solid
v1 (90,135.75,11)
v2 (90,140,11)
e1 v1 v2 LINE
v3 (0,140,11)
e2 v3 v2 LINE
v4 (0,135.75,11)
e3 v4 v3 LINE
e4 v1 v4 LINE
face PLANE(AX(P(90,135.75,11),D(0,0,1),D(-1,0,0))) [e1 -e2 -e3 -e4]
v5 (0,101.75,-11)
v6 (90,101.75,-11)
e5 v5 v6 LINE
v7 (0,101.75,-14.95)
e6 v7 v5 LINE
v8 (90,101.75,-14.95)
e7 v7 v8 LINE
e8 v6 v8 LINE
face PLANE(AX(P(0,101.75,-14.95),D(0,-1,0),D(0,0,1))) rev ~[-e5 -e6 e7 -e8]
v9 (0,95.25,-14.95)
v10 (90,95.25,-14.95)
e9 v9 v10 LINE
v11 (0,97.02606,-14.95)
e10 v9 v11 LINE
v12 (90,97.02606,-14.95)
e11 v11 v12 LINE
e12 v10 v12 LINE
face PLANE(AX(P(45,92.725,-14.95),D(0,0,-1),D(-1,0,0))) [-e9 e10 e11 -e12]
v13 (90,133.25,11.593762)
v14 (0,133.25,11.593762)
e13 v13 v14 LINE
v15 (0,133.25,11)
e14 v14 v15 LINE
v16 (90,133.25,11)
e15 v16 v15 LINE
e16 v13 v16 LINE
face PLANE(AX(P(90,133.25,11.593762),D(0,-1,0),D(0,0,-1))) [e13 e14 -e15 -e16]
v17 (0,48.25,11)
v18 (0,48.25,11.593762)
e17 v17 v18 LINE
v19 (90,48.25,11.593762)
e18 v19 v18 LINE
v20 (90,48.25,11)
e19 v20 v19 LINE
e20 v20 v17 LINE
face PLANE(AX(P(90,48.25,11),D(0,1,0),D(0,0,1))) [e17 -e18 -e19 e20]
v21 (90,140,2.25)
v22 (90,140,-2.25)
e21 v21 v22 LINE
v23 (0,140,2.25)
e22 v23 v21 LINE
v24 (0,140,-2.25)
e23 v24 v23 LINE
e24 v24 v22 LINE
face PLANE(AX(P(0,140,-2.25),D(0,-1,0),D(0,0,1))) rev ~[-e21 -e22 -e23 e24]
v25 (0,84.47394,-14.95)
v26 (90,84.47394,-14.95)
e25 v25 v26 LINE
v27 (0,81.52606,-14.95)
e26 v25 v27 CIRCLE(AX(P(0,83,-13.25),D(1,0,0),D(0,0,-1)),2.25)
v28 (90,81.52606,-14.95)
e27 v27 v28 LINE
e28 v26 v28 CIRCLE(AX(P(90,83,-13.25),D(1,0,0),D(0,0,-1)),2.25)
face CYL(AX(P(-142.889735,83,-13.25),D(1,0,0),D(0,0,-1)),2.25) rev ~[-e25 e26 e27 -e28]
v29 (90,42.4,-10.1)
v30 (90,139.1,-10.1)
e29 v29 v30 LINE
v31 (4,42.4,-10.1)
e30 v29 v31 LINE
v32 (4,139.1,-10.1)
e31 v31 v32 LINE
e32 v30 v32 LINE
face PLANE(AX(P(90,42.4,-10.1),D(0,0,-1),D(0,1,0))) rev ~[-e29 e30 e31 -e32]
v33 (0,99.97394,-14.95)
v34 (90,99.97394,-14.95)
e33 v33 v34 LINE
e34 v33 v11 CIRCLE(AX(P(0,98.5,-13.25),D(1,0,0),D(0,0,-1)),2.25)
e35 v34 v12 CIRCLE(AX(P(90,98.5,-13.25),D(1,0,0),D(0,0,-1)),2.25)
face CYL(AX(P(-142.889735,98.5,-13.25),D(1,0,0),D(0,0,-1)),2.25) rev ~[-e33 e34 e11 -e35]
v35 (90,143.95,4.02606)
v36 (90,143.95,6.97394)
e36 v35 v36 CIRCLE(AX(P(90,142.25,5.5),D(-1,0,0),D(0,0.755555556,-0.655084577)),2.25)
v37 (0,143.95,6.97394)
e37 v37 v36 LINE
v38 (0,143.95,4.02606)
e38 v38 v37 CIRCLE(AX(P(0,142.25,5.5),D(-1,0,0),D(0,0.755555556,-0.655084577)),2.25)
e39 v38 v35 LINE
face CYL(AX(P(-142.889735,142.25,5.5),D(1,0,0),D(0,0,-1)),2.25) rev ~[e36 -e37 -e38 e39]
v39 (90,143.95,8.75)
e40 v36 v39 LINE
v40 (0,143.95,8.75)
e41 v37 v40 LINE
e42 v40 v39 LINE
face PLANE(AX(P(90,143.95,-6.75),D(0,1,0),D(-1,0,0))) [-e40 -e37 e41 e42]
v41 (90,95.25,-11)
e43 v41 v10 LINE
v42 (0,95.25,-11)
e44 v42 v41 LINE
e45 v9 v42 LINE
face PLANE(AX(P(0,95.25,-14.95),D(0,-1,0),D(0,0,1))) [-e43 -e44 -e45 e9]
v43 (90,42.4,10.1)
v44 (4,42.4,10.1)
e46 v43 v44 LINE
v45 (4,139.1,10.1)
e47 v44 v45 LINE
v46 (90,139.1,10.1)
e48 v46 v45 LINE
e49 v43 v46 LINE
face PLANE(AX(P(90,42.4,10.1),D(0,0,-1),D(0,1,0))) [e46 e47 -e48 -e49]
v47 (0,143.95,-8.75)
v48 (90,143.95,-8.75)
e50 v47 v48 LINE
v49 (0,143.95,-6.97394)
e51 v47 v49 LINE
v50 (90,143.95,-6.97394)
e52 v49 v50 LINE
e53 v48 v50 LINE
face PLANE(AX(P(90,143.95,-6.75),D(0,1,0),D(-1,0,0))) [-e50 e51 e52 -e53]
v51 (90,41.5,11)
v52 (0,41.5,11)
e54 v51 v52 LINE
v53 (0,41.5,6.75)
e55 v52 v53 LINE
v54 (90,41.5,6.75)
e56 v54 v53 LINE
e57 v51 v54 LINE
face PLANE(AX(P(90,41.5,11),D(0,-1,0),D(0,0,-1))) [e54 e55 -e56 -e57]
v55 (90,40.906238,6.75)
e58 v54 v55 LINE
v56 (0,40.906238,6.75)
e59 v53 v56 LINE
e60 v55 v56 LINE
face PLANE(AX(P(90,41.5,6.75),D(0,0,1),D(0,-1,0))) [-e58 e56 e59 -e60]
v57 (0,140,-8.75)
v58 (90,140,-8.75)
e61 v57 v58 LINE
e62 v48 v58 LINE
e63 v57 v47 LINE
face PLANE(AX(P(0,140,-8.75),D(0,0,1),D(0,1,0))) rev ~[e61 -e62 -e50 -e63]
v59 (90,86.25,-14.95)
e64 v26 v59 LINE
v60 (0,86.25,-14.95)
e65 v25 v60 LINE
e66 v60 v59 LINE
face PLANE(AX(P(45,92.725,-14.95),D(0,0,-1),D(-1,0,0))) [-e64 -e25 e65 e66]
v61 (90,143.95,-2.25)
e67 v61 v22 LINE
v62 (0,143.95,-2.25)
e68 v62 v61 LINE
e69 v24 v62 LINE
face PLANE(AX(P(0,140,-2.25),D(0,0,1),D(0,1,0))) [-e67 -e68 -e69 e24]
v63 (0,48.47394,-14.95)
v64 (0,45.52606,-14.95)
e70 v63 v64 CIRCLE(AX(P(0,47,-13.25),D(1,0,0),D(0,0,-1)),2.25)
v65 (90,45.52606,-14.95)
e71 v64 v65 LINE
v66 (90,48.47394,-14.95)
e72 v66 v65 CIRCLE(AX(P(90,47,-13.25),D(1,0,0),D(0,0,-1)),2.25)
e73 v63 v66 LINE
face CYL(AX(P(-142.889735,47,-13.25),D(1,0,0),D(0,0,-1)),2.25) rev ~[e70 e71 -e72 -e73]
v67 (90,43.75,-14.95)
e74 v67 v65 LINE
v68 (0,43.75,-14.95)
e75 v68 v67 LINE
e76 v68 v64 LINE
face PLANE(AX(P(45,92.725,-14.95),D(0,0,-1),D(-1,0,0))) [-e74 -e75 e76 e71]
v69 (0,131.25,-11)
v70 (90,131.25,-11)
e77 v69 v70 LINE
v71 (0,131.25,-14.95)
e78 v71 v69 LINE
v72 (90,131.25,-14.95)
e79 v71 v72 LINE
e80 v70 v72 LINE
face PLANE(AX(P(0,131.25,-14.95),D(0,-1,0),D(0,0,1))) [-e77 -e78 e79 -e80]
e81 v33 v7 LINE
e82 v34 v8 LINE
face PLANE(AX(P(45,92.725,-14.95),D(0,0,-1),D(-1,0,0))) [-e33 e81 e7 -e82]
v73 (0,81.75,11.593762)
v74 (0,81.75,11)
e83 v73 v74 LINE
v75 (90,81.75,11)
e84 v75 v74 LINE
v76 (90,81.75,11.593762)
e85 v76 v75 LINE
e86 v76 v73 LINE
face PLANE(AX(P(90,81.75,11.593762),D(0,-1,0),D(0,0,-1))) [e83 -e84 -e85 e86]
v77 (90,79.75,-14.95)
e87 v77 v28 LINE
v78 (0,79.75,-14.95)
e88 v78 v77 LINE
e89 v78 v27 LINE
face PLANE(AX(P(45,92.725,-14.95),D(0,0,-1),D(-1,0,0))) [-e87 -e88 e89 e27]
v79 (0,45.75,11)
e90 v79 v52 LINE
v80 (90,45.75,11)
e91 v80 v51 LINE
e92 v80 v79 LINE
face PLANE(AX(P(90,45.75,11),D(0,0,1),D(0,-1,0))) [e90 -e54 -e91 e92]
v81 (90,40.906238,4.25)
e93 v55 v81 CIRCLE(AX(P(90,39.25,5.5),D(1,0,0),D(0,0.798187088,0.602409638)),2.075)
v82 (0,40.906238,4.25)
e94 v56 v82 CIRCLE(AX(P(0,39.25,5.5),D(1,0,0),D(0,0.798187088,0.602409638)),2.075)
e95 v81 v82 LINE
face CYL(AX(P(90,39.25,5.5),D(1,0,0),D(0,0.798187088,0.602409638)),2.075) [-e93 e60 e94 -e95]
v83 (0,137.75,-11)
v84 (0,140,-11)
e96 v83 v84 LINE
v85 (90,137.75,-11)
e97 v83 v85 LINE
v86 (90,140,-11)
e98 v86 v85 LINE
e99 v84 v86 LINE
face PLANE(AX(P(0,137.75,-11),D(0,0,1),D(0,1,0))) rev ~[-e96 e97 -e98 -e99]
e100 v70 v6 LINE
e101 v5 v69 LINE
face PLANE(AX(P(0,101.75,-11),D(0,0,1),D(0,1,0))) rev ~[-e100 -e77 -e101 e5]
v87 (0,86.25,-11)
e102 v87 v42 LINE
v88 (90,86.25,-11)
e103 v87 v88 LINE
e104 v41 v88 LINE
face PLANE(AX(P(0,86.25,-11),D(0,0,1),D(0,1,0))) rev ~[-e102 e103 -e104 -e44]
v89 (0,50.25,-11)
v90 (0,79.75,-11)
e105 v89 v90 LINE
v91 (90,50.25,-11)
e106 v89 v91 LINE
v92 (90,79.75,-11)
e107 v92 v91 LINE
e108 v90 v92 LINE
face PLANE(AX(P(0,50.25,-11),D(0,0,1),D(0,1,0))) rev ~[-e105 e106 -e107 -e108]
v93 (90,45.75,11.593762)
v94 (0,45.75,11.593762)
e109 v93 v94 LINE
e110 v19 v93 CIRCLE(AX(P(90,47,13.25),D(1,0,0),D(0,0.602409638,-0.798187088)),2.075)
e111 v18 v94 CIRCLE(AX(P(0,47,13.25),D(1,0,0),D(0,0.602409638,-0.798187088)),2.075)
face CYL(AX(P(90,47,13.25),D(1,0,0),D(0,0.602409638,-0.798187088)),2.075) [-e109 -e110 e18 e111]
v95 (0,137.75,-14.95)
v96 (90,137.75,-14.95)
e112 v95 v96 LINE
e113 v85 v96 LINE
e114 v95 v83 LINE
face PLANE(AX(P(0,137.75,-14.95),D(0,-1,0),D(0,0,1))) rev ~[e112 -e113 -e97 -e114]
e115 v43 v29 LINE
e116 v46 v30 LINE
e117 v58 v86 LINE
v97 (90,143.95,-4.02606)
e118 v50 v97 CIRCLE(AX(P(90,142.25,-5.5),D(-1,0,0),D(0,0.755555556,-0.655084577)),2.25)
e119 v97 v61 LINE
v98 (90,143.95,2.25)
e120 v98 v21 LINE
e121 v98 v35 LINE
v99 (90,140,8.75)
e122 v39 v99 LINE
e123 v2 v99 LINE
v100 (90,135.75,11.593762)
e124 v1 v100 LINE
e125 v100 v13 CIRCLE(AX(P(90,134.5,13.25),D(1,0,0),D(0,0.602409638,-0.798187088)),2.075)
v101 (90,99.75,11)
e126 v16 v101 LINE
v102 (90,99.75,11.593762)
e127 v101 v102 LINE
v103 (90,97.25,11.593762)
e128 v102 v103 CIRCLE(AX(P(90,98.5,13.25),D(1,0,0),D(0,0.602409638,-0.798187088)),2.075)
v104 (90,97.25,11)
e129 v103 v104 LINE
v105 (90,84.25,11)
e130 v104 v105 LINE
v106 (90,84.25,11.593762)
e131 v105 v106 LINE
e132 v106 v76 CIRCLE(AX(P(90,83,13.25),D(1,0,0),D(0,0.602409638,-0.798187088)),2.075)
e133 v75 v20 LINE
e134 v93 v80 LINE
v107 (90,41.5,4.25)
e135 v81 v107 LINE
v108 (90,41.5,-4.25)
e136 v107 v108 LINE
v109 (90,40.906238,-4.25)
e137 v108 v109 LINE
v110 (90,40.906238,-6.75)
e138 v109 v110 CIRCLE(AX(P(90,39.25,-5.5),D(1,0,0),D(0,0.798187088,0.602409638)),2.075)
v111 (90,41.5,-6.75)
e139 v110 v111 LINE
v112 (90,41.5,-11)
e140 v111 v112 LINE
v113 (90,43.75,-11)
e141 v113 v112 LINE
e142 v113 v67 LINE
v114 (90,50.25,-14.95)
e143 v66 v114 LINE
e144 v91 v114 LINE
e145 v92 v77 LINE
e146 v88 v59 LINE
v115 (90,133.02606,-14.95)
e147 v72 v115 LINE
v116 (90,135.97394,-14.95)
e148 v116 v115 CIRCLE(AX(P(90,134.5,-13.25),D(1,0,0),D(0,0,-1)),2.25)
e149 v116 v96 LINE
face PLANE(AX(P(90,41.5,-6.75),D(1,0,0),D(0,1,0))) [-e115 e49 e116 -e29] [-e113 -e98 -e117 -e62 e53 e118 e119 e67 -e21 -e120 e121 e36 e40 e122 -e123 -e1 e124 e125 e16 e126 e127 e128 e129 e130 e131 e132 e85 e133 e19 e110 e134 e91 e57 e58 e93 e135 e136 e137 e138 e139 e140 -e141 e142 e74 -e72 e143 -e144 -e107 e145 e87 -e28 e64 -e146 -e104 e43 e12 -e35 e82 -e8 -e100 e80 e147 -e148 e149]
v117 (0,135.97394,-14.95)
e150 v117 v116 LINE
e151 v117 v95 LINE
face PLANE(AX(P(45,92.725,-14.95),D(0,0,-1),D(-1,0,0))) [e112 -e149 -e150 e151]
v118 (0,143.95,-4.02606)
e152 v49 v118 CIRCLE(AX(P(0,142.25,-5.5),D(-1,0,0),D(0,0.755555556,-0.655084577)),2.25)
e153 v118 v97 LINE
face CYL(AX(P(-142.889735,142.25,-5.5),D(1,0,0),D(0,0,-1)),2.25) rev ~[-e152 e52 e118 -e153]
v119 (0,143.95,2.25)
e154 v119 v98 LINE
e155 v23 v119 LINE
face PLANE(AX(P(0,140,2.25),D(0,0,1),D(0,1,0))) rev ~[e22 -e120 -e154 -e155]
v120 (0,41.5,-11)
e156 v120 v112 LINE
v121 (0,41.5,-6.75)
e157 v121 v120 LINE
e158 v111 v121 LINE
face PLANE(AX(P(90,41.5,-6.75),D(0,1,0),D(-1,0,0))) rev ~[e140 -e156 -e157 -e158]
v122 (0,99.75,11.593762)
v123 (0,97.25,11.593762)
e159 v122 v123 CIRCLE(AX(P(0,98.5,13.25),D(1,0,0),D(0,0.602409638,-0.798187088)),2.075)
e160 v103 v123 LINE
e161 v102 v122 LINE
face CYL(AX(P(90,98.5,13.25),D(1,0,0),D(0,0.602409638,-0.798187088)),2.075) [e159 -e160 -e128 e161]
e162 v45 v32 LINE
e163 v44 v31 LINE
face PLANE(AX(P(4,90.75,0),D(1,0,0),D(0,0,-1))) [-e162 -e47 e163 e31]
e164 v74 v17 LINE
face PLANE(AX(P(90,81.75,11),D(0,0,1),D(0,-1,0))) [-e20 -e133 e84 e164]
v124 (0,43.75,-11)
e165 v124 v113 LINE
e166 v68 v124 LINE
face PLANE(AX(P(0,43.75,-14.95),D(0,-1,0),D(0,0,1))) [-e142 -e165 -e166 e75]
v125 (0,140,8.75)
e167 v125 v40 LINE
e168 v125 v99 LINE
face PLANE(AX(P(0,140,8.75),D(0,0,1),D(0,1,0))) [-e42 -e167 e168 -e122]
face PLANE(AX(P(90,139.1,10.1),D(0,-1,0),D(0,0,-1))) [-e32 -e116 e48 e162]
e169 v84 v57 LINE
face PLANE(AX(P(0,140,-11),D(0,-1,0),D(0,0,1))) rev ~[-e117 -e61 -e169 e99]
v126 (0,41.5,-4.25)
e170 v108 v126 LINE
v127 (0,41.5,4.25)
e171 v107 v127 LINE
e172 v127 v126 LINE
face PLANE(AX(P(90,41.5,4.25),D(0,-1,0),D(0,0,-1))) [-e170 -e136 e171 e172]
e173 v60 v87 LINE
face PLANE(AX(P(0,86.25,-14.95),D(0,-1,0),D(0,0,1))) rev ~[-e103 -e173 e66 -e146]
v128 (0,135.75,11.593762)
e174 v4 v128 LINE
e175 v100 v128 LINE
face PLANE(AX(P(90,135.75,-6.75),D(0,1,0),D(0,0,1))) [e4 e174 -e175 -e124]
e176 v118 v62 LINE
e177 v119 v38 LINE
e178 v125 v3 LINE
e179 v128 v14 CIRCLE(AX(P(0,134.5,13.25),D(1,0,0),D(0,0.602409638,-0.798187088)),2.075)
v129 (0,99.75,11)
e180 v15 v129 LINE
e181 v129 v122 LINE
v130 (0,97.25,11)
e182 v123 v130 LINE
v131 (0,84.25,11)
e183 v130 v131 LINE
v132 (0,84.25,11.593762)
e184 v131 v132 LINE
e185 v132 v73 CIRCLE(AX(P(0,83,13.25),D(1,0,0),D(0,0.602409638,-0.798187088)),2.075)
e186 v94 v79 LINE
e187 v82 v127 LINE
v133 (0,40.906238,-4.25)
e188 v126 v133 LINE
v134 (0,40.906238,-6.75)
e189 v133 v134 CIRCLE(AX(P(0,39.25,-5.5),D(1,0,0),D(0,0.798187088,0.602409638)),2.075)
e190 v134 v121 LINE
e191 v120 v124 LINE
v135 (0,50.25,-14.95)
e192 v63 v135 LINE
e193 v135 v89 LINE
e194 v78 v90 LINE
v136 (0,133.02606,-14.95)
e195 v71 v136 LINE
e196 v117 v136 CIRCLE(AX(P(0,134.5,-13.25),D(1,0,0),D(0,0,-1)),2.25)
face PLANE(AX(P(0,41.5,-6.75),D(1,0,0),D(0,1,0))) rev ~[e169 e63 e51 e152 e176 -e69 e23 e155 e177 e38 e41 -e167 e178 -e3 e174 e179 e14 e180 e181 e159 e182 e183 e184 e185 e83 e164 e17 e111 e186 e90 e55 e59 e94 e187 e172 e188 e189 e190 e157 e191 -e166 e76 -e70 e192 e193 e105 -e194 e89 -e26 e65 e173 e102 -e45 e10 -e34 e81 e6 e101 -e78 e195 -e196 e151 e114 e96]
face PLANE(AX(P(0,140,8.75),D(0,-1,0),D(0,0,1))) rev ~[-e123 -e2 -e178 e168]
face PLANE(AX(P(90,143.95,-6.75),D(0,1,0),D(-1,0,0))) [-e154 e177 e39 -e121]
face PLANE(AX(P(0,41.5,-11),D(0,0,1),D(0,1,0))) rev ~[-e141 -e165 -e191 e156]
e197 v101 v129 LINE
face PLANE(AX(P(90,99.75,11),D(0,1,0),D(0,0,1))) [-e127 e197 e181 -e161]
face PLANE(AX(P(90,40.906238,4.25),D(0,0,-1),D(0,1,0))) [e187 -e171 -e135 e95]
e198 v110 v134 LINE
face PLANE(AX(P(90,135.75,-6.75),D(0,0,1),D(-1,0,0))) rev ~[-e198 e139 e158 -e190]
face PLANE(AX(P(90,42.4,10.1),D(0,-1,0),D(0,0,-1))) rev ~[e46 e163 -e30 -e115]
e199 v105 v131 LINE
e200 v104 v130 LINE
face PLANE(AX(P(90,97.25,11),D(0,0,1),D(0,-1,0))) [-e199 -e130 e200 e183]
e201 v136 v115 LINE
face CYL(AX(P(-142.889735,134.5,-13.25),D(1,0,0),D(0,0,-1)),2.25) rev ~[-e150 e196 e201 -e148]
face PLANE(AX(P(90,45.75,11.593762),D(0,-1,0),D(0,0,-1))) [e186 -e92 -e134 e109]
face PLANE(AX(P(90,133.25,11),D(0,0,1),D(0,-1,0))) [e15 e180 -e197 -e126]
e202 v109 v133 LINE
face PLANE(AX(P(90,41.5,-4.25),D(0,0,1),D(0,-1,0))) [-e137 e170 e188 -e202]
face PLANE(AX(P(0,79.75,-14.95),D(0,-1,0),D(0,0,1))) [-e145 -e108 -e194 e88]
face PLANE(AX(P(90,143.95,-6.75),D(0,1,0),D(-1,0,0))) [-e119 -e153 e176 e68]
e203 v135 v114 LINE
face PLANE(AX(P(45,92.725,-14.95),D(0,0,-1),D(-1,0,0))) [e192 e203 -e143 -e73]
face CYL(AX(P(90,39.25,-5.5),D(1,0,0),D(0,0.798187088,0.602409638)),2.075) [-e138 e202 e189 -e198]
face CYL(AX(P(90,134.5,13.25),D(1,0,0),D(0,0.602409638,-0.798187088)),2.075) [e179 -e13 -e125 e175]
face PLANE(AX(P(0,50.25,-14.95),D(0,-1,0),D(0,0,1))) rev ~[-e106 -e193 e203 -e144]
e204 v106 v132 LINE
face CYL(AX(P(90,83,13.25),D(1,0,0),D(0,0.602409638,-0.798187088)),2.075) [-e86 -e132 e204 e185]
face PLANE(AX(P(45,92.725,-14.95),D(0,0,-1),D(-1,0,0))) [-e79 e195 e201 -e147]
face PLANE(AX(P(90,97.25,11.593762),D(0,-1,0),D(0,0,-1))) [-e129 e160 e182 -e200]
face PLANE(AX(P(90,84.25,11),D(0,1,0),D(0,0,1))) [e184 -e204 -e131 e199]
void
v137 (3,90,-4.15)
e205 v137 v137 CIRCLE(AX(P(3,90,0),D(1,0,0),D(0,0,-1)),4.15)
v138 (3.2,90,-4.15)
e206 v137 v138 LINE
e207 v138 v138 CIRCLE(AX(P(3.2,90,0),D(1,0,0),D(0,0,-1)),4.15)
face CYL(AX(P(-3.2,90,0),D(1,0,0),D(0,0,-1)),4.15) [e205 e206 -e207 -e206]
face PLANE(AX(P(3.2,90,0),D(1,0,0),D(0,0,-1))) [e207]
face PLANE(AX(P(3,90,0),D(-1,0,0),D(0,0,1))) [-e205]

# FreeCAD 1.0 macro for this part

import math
import FreeCAD as App
import Part
import Sketcher

V = App.Vector


def add_polygon(sketch, points):
    """Adds a closed chain of lines whose ends are joined by coincident constraints."""
    first, n = sketch.GeometryCount, len(points)
    for a, b in zip(points, points[1:] + points[:1]):
        sketch.addGeometry(Part.LineSegment(App.Vector(*a, 0), App.Vector(*b, 0)), False)
    for i in range(n):
        sketch.addConstraint(Sketcher.Constraint("Coincident", first + i, 2, first + (i + 1) % n, 1))

doc = App.newDocument("Part")
body = doc.addObject("PartDesign::Body", "Body")

sketch1 = doc.addObject("Sketcher::SketchObject", "Sketch")
body.addObject(sketch1)
sketch1.AttachmentSupport = (doc.YZ_Plane, [""])
sketch1.MapMode = "FlatFace"
sketch1.AttachmentOffset = App.Placement(V(0, 0, 90), App.Rotation())
sketch1.addGeometry(Part.LineSegment(V(40.906238, -6.75, 0), V(135.75, -6.75, 0)), False)
sketch1.addGeometry(Part.LineSegment(V(135.75, -6.75, 0), V(135.75, 11.593762, 0)), False)
sketch1.addGeometry(Part.ArcOfCircle(Part.Circle(V(134.5, 13.25, 0), V(0, 0, 1), 2.075), math.radians(-52.957329), math.radians(232.957329)), False)
sketch1.addGeometry(Part.LineSegment(V(133.25, 11.593762, 0), V(133.25, 11, 0)), False)
sketch1.addGeometry(Part.LineSegment(V(133.25, 11, 0), V(99.75, 11, 0)), False)
sketch1.addGeometry(Part.LineSegment(V(99.75, 11, 0), V(99.75, 11.593762, 0)), False)
sketch1.addGeometry(Part.ArcOfCircle(Part.Circle(V(98.5, 13.25, 0), V(0, 0, 1), 2.075), math.radians(-52.957329), math.radians(232.957329)), False)
sketch1.addGeometry(Part.LineSegment(V(97.25, 11.593762, 0), V(97.25, 11, 0)), False)
sketch1.addGeometry(Part.LineSegment(V(97.25, 11, 0), V(84.25, 11, 0)), False)
sketch1.addGeometry(Part.LineSegment(V(84.25, 11, 0), V(84.25, 11.593762, 0)), False)
sketch1.addGeometry(Part.ArcOfCircle(Part.Circle(V(83, 13.25, 0), V(0, 0, 1), 2.075), math.radians(-52.957329), math.radians(232.957329)), False)
sketch1.addGeometry(Part.LineSegment(V(81.75, 11.593762, 0), V(81.75, 11, 0)), False)
sketch1.addGeometry(Part.LineSegment(V(81.75, 11, 0), V(48.25, 11, 0)), False)
sketch1.addGeometry(Part.LineSegment(V(48.25, 11, 0), V(48.25, 11.593762, 0)), False)
sketch1.addGeometry(Part.ArcOfCircle(Part.Circle(V(47, 13.25, 0), V(0, 0, 1), 2.075), math.radians(-52.957329), math.radians(232.957329)), False)
sketch1.addGeometry(Part.LineSegment(V(45.75, 11.593762, 0), V(45.75, 11, 0)), False)
sketch1.addGeometry(Part.LineSegment(V(45.75, 11, 0), V(41.5, 11, 0)), False)
sketch1.addGeometry(Part.LineSegment(V(41.5, 11, 0), V(41.5, 6.75, 0)), False)
sketch1.addGeometry(Part.LineSegment(V(41.5, 6.75, 0), V(40.906238, 6.75, 0)), False)
sketch1.addGeometry(Part.ArcOfCircle(Part.Circle(V(39.25, 5.5, 0), V(0, 0, 1), 2.075), math.radians(37.042671), math.radians(322.957329)), False)
sketch1.addGeometry(Part.LineSegment(V(40.906238, 4.25, 0), V(41.5, 4.25, 0)), False)
sketch1.addGeometry(Part.LineSegment(V(41.5, 4.25, 0), V(41.5, -4.25, 0)), False)
sketch1.addGeometry(Part.LineSegment(V(41.5, -4.25, 0), V(40.906238, -4.25, 0)), False)
sketch1.addGeometry(Part.ArcOfCircle(Part.Circle(V(39.25, -5.5, 0), V(0, 0, 1), 2.075), math.radians(37.042671), math.radians(322.957329)), False)
sketch1.addConstraint(Sketcher.Constraint("Coincident", 0, 2, 1, 1))
sketch1.addConstraint(Sketcher.Constraint("Coincident", 1, 2, 2, 1))
sketch1.addConstraint(Sketcher.Constraint("Coincident", 2, 2, 3, 1))
sketch1.addConstraint(Sketcher.Constraint("Coincident", 3, 2, 4, 1))
sketch1.addConstraint(Sketcher.Constraint("Coincident", 4, 2, 5, 1))
sketch1.addConstraint(Sketcher.Constraint("Coincident", 5, 2, 6, 1))
sketch1.addConstraint(Sketcher.Constraint("Coincident", 6, 2, 7, 1))
sketch1.addConstraint(Sketcher.Constraint("Coincident", 7, 2, 8, 1))
sketch1.addConstraint(Sketcher.Constraint("Coincident", 8, 2, 9, 1))
sketch1.addConstraint(Sketcher.Constraint("Coincident", 9, 2, 10, 1))
sketch1.addConstraint(Sketcher.Constraint("Coincident", 10, 2, 11, 1))
sketch1.addConstraint(Sketcher.Constraint("Coincident", 11, 2, 12, 1))
sketch1.addConstraint(Sketcher.Constraint("Coincident", 12, 2, 13, 1))
sketch1.addConstraint(Sketcher.Constraint("Coincident", 13, 2, 14, 1))
sketch1.addConstraint(Sketcher.Constraint("Coincident", 14, 2, 15, 1))
sketch1.addConstraint(Sketcher.Constraint("Coincident", 15, 2, 16, 1))
sketch1.addConstraint(Sketcher.Constraint("Coincident", 16, 2, 17, 1))
sketch1.addConstraint(Sketcher.Constraint("Coincident", 17, 2, 18, 1))
sketch1.addConstraint(Sketcher.Constraint("Coincident", 18, 2, 19, 1))
sketch1.addConstraint(Sketcher.Constraint("Coincident", 19, 2, 20, 1))
sketch1.addConstraint(Sketcher.Constraint("Coincident", 20, 2, 21, 1))
sketch1.addConstraint(Sketcher.Constraint("Coincident", 21, 2, 22, 1))
sketch1.addConstraint(Sketcher.Constraint("Coincident", 22, 2, 23, 1))
sketch1.addConstraint(Sketcher.Constraint("Coincident", 23, 2, 0, 1))
sketch1.addConstraint(Sketcher.Constraint("Horizontal", 0))
sketch1.addConstraint(Sketcher.Constraint("Vertical", 1))
sketch1.addConstraint(Sketcher.Constraint("Vertical", 3))
sketch1.addConstraint(Sketcher.Constraint("Horizontal", 4))
sketch1.addConstraint(Sketcher.Constraint("Vertical", 5))
sketch1.addConstraint(Sketcher.Constraint("Vertical", 7))
sketch1.addConstraint(Sketcher.Constraint("Horizontal", 8))
sketch1.addConstraint(Sketcher.Constraint("Vertical", 9))
sketch1.addConstraint(Sketcher.Constraint("Vertical", 11))
sketch1.addConstraint(Sketcher.Constraint("Horizontal", 12))
sketch1.addConstraint(Sketcher.Constraint("Vertical", 13))
sketch1.addConstraint(Sketcher.Constraint("Vertical", 15))
sketch1.addConstraint(Sketcher.Constraint("Horizontal", 16))
sketch1.addConstraint(Sketcher.Constraint("Vertical", 17))
sketch1.addConstraint(Sketcher.Constraint("Horizontal", 18))
sketch1.addConstraint(Sketcher.Constraint("Horizontal", 20))
sketch1.addConstraint(Sketcher.Constraint("Vertical", 21))
sketch1.addConstraint(Sketcher.Constraint("Horizontal", 22))
sketch1.addConstraint(Sketcher.Constraint("Equal", 2, 6))
sketch1.addConstraint(Sketcher.Constraint("Equal", 6, 10))
sketch1.addConstraint(Sketcher.Constraint("Equal", 10, 14))
sketch1.addConstraint(Sketcher.Constraint("Equal", 14, 19))
sketch1.addConstraint(Sketcher.Constraint("Equal", 19, 23))
sketch1.addConstraint(Sketcher.Constraint("Symmetric", 19, 3, 23, 3, -1))
sketch1.addConstraint(Sketcher.Constraint("Horizontal", 2, 3, 6, 3))
sketch1.addConstraint(Sketcher.Constraint("Horizontal", 6, 3, 10, 3))
sketch1.addConstraint(Sketcher.Constraint("Horizontal", 10, 3, 14, 3))
sketch1.addConstraint(Sketcher.Constraint("Horizontal", 1, 2, 2, 2))
sketch1.addConstraint(Sketcher.Constraint("Horizontal", 2, 2, 5, 2))
sketch1.addConstraint(Sketcher.Constraint("Horizontal", 5, 2, 6, 2))
sketch1.addConstraint(Sketcher.Constraint("Horizontal", 4, 2, 7, 2))
sketch1.addConstraint(Sketcher.Constraint("Horizontal", 6, 2, 9, 2))
sketch1.addConstraint(Sketcher.Constraint("Horizontal", 9, 2, 10, 2))
sketch1.addConstraint(Sketcher.Constraint("Horizontal", 8, 2, 11, 2))
sketch1.addConstraint(Sketcher.Constraint("Horizontal", 10, 2, 13, 2))
sketch1.addConstraint(Sketcher.Constraint("Horizontal", 13, 2, 14, 2))
sketch1.addConstraint(Sketcher.Constraint("Horizontal", 12, 2, 15, 2))
sketch1.addConstraint(Sketcher.Constraint("Vertical", 18, 2, 19, 2))
sketch1.addConstraint(Sketcher.Constraint("Vertical", 17, 2, 20, 2))
sketch1.addConstraint(Sketcher.Constraint("Vertical", 19, 2, 22, 2))
sketch1.addConstraint(Sketcher.Constraint("Vertical", 22, 2, 23, 2))
sketch1.addConstraint(Sketcher.Constraint("Equal", 4, 12))
sketch1.addConstraint(Sketcher.Constraint("Equal", 22, 3))
sketch1.addConstraint(Sketcher.Constraint("Equal", 16, 17))
sketch1.addConstraint(Sketcher.Constraint("DistanceX", 8, 2, 8, 1, 13.0))
sketch1.addConstraint(Sketcher.Constraint("DistanceX", 4, 2, 4, 1, 33.5))
sketch1.addConstraint(Sketcher.Constraint("DistanceY", 21, 2, 21, 1, 8.5))
sketch1.addConstraint(Sketcher.Constraint("DistanceX", -1, 1, 10, 3, 83.0))
sketch1.addConstraint(Sketcher.Constraint("DistanceX", -1, 1, 14, 3, 47.0))
sketch1.addConstraint(Sketcher.Constraint("DistanceY", -1, 1, 3, 2, 11.0))
sketch1.addConstraint(Sketcher.Constraint("Radius", 2, 2.075))
sketch1.addConstraint(Sketcher.Constraint("DistanceY", 23, 3, 19, 3, 11.0))
sketch1.addConstraint(Sketcher.Constraint("DistanceY", 0, 2, 2, 3, 20.0))
pad1 = doc.addObject("PartDesign::Pad", "Pad")
body.addObject(pad1)
pad1.Profile = sketch1
pad1.Length = 90
pad1.Reversed = True

sketch2 = doc.addObject("Sketcher::SketchObject", "Sketch001")
body.addObject(sketch2)
sketch2.AttachmentSupport = (doc.XZ_Plane, [""])
sketch2.MapMode = "FlatFace"
sketch2.AttachmentOffset = App.Placement(V(0, 0, -135.75), App.Rotation())
add_polygon(sketch2, [(90, 11), (90, -6.75), (0, -6.75), (0, 11)])
sketch2.addConstraint(Sketcher.Constraint("Vertical", 0))
sketch2.addConstraint(Sketcher.Constraint("Horizontal", 1))
sketch2.addConstraint(Sketcher.Constraint("Vertical", 2))
sketch2.addConstraint(Sketcher.Constraint("Horizontal", 3))
sketch2.addConstraint(Sketcher.Constraint("PointOnObject", 1, 2, -2))
sketch2.addConstraint(Sketcher.Constraint("DistanceX", 1, 2, 1, 1, 90.0))
sketch2.addConstraint(Sketcher.Constraint("DistanceY", -1, 1, 2, 2, 11.0))
sketch2.addConstraint(Sketcher.Constraint("DistanceY", 0, 2, 0, 1, 17.75))
pad2 = doc.addObject("PartDesign::Pad", "Pad001")
body.addObject(pad2)
pad2.Profile = sketch2
pad2.Length = 8.2
pad2.Reversed = True

sketch3 = doc.addObject("Sketcher::SketchObject", "Sketch002")
body.addObject(sketch3)
sketch3.AttachmentSupport = (doc.XY_Plane, [""])
sketch3.MapMode = "FlatFace"
sketch3.AttachmentOffset = App.Placement(V(0, 0, -6.75), App.Rotation())
add_polygon(sketch3, [(90, 143.95), (90, 41.5), (0, 41.5), (0, 143.95)])
sketch3.addConstraint(Sketcher.Constraint("Vertical", 0))
sketch3.addConstraint(Sketcher.Constraint("Horizontal", 1))
sketch3.addConstraint(Sketcher.Constraint("Vertical", 2))
sketch3.addConstraint(Sketcher.Constraint("Horizontal", 3))
sketch3.addConstraint(Sketcher.Constraint("PointOnObject", 1, 2, -2))
sketch3.addConstraint(Sketcher.Constraint("DistanceX", 1, 2, 1, 1, 90.0))
sketch3.addConstraint(Sketcher.Constraint("DistanceY", 0, 2, 0, 1, 102.45))
sketch3.addConstraint(Sketcher.Constraint("DistanceY", -1, 1, 0, 2, 41.5))
pad3 = doc.addObject("PartDesign::Pad", "Pad002")
body.addObject(pad3)
pad3.Profile = sketch3
pad3.Length = 8.2
pad3.Reversed = True

sketch4 = doc.addObject("Sketcher::SketchObject", "Sketch003")
body.addObject(sketch4)
sketch4.AttachmentSupport = (doc.YZ_Plane, [""])
sketch4.MapMode = "FlatFace"
add_polygon(sketch4, [(43.75, -14.95), (41.5, -14.95), (41.5, -11), (43.75, -11)])
sketch4.addConstraint(Sketcher.Constraint("Horizontal", 0))
sketch4.addConstraint(Sketcher.Constraint("Vertical", 1))
sketch4.addConstraint(Sketcher.Constraint("Horizontal", 2))
sketch4.addConstraint(Sketcher.Constraint("Vertical", 3))
sketch4.addConstraint(Sketcher.Constraint("DistanceY", 1, 2, -1, 1, 11.0))
sketch4.addConstraint(Sketcher.Constraint("DistanceX", 0, 2, 0, 1, 2.25))
sketch4.addConstraint(Sketcher.Constraint("DistanceY", 1, 1, 1, 2, 3.95))
sketch4.addConstraint(Sketcher.Constraint("DistanceX", -1, 1, 0, 2, 41.5))
pocket1 = doc.addObject("PartDesign::Pocket", "Pocket")
body.addObject(pocket1)
pocket1.Profile = sketch4
pocket1.Type = "ThroughAll"
pocket1.Reversed = True

sketch5 = doc.addObject("Sketcher::SketchObject", "Sketch004")
body.addObject(sketch5)
sketch5.AttachmentSupport = (doc.YZ_Plane, [""])
sketch5.MapMode = "FlatFace"
add_polygon(sketch5, [(79.75, -14.95), (50.25, -14.95), (50.25, -11), (79.75, -11)])
sketch5.addConstraint(Sketcher.Constraint("Horizontal", 0))
sketch5.addConstraint(Sketcher.Constraint("Vertical", 1))
sketch5.addConstraint(Sketcher.Constraint("Horizontal", 2))
sketch5.addConstraint(Sketcher.Constraint("Vertical", 3))
sketch5.addConstraint(Sketcher.Constraint("DistanceX", 0, 2, 0, 1, 29.5))
sketch5.addConstraint(Sketcher.Constraint("DistanceY", 1, 2, -1, 1, 11.0))
sketch5.addConstraint(Sketcher.Constraint("DistanceY", 1, 1, 1, 2, 3.95))
sketch5.addConstraint(Sketcher.Constraint("DistanceX", -1, 1, 0, 2, 50.25))
pocket2 = doc.addObject("PartDesign::Pocket", "Pocket001")
body.addObject(pocket2)
pocket2.Profile = sketch5
pocket2.Type = "ThroughAll"
pocket2.Reversed = True

sketch6 = doc.addObject("Sketcher::SketchObject", "Sketch005")
body.addObject(sketch6)
sketch6.AttachmentSupport = (doc.YZ_Plane, [""])
sketch6.MapMode = "FlatFace"
add_polygon(sketch6, [(95.25, -14.95), (86.25, -14.95), (86.25, -11), (95.25, -11)])
sketch6.addConstraint(Sketcher.Constraint("Horizontal", 0))
sketch6.addConstraint(Sketcher.Constraint("Vertical", 1))
sketch6.addConstraint(Sketcher.Constraint("Horizontal", 2))
sketch6.addConstraint(Sketcher.Constraint("Vertical", 3))
sketch6.addConstraint(Sketcher.Constraint("DistanceX", 0, 2, 0, 1, 9.0))
sketch6.addConstraint(Sketcher.Constraint("DistanceY", 1, 2, -1, 1, 11.0))
sketch6.addConstraint(Sketcher.Constraint("DistanceY", 1, 1, 1, 2, 3.95))
sketch6.addConstraint(Sketcher.Constraint("DistanceX", -1, 1, 0, 2, 86.25))
pocket3 = doc.addObject("PartDesign::Pocket", "Pocket002")
body.addObject(pocket3)
pocket3.Profile = sketch6
pocket3.Type = "ThroughAll"
pocket3.Reversed = True

sketch7 = doc.addObject("Sketcher::SketchObject", "Sketch006")
body.addObject(sketch7)
sketch7.AttachmentSupport = (doc.YZ_Plane, [""])
sketch7.MapMode = "FlatFace"
add_polygon(sketch7, [(131.25, -14.95), (101.75, -14.95), (101.75, -11), (131.25, -11)])
sketch7.addConstraint(Sketcher.Constraint("Horizontal", 0))
sketch7.addConstraint(Sketcher.Constraint("Vertical", 1))
sketch7.addConstraint(Sketcher.Constraint("Horizontal", 2))
sketch7.addConstraint(Sketcher.Constraint("Vertical", 3))
sketch7.addConstraint(Sketcher.Constraint("DistanceX", 0, 2, 0, 1, 29.5))
sketch7.addConstraint(Sketcher.Constraint("DistanceY", 1, 2, -1, 1, 11.0))
sketch7.addConstraint(Sketcher.Constraint("DistanceY", 1, 1, 1, 2, 3.95))
sketch7.addConstraint(Sketcher.Constraint("DistanceX", -1, 1, 0, 2, 101.75))
pocket4 = doc.addObject("PartDesign::Pocket", "Pocket003")
body.addObject(pocket4)
pocket4.Profile = sketch7
pocket4.Type = "ThroughAll"
pocket4.Reversed = True

sketch8 = doc.addObject("Sketcher::SketchObject", "Sketch007")
body.addObject(sketch8)
sketch8.AttachmentSupport = (doc.YZ_Plane, [""])
sketch8.MapMode = "FlatFace"
add_polygon(sketch8, [(143.95, -14.95), (137.75, -14.95), (137.75, -11), (143.95, -11)])
sketch8.addConstraint(Sketcher.Constraint("Horizontal", 0))
sketch8.addConstraint(Sketcher.Constraint("Vertical", 1))
sketch8.addConstraint(Sketcher.Constraint("Horizontal", 2))
sketch8.addConstraint(Sketcher.Constraint("Vertical", 3))
sketch8.addConstraint(Sketcher.Constraint("DistanceX", 0, 2, 0, 1, 6.2))
sketch8.addConstraint(Sketcher.Constraint("DistanceY", 1, 2, -1, 1, 11.0))
sketch8.addConstraint(Sketcher.Constraint("DistanceY", 1, 1, 1, 2, 3.95))
sketch8.addConstraint(Sketcher.Constraint("DistanceX", -1, 1, 0, 2, 137.75))
pocket5 = doc.addObject("PartDesign::Pocket", "Pocket004")
body.addObject(pocket5)
pocket5.Profile = sketch8
pocket5.Type = "ThroughAll"
pocket5.Reversed = True

sketch9 = doc.addObject("Sketcher::SketchObject", "Sketch008")
body.addObject(sketch9)
sketch9.AttachmentSupport = (doc.YZ_Plane, [""])
sketch9.MapMode = "FlatFace"
add_polygon(sketch9, [(143.95, -11), (140, -11), (140, -8.75), (143.95, -8.75)])
sketch9.addConstraint(Sketcher.Constraint("Horizontal", 0))
sketch9.addConstraint(Sketcher.Constraint("Vertical", 1))
sketch9.addConstraint(Sketcher.Constraint("Horizontal", 2))
sketch9.addConstraint(Sketcher.Constraint("Vertical", 3))
sketch9.addConstraint(Sketcher.Constraint("DistanceX", -1, 1, 0, 2, 140.0))
sketch9.addConstraint(Sketcher.Constraint("DistanceY", 0, 2, -1, 1, 11.0))
sketch9.addConstraint(Sketcher.Constraint("DistanceX", 0, 2, 0, 1, 3.95))
sketch9.addConstraint(Sketcher.Constraint("DistanceY", 1, 1, 1, 2, 2.25))
pocket6 = doc.addObject("PartDesign::Pocket", "Pocket005")
body.addObject(pocket6)
pocket6.Profile = sketch9
pocket6.Type = "ThroughAll"
pocket6.Reversed = True

sketch10 = doc.addObject("Sketcher::SketchObject", "Sketch009")
body.addObject(sketch10)
sketch10.AttachmentSupport = (doc.YZ_Plane, [""])
sketch10.MapMode = "FlatFace"
add_polygon(sketch10, [(143.95, -2.25), (140, -2.25), (140, 2.25), (143.95, 2.25)])
sketch10.addConstraint(Sketcher.Constraint("Horizontal", 0))
sketch10.addConstraint(Sketcher.Constraint("Vertical", 1))
sketch10.addConstraint(Sketcher.Constraint("Horizontal", 2))
sketch10.addConstraint(Sketcher.Constraint("Vertical", 3))
sketch10.addConstraint(Sketcher.Constraint("DistanceY", 1, 1, 1, 2, 4.5))
sketch10.addConstraint(Sketcher.Constraint("DistanceX", -1, 1, 0, 2, 140.0))
sketch10.addConstraint(Sketcher.Constraint("DistanceX", 0, 2, 0, 1, 3.95))
sketch10.addConstraint(Sketcher.Constraint("DistanceY", 0, 2, -1, 1, 2.25))
pocket7 = doc.addObject("PartDesign::Pocket", "Pocket006")
body.addObject(pocket7)
pocket7.Profile = sketch10
pocket7.Type = "ThroughAll"
pocket7.Reversed = True

sketch11 = doc.addObject("Sketcher::SketchObject", "Sketch010")
body.addObject(sketch11)
sketch11.AttachmentSupport = (doc.YZ_Plane, [""])
sketch11.MapMode = "FlatFace"
add_polygon(sketch11, [(143.95, 8.75), (140, 8.75), (140, 11), (143.95, 11)])
sketch11.addConstraint(Sketcher.Constraint("Horizontal", 0))
sketch11.addConstraint(Sketcher.Constraint("Vertical", 1))
sketch11.addConstraint(Sketcher.Constraint("Horizontal", 2))
sketch11.addConstraint(Sketcher.Constraint("Vertical", 3))
sketch11.addConstraint(Sketcher.Constraint("DistanceX", -1, 1, 0, 2, 140.0))
sketch11.addConstraint(Sketcher.Constraint("DistanceY", -1, 1, 1, 2, 11.0))
sketch11.addConstraint(Sketcher.Constraint("DistanceX", 0, 2, 0, 1, 3.95))
sketch11.addConstraint(Sketcher.Constraint("DistanceY", 1, 1, 1, 2, 2.25))
pocket8 = doc.addObject("PartDesign::Pocket", "Pocket007")
body.addObject(pocket8)
pocket8.Profile = sketch11
pocket8.Type = "ThroughAll"
pocket8.Reversed = True

sketch12 = doc.addObject("Sketcher::SketchObject", "Sketch011")
body.addObject(sketch12)
sketch12.AttachmentSupport = (doc.YZ_Plane, [""])
sketch12.MapMode = "FlatFace"
sketch12.AttachmentOffset = App.Placement(V(0, 0, 90), App.Rotation())
add_polygon(sketch12, [(139.1, 10.1), (42.4, 10.1), (42.4, -10.1), (139.1, -10.1)])
sketch12.addConstraint(Sketcher.Constraint("Horizontal", 0))
sketch12.addConstraint(Sketcher.Constraint("Vertical", 1))
sketch12.addConstraint(Sketcher.Constraint("Horizontal", 2))
sketch12.addConstraint(Sketcher.Constraint("Vertical", 3))
sketch12.addConstraint(Sketcher.Constraint("DistanceX", 0, 2, 0, 1, 96.7))
sketch12.addConstraint(Sketcher.Constraint("DistanceY", 1, 2, 1, 1, 20.2))
sketch12.addConstraint(Sketcher.Constraint("DistanceX", -1, 1, 0, 2, 42.4))
sketch12.addConstraint(Sketcher.Constraint("DistanceY", -1, 1, 0, 2, 10.1))
pocket9 = doc.addObject("PartDesign::Pocket", "Pocket008")
body.addObject(pocket9)
pocket9.Profile = sketch12
pocket9.Length = 86

sketch13 = doc.addObject("Sketcher::SketchObject", "Sketch012")
body.addObject(sketch13)
sketch13.AttachmentSupport = (doc.YZ_Plane, [""])
sketch13.MapMode = "FlatFace"
sketch13.addGeometry(Part.Circle(V(90, 0, 0), V(0, 0, 1), 4.15), False)
sketch13.addConstraint(Sketcher.Constraint("PointOnObject", 0, 3, -1))
sketch13.addConstraint(Sketcher.Constraint("Diameter", 0, 8.3))
sketch13.addConstraint(Sketcher.Constraint("DistanceX", -1, 1, 0, 3, 90.0))
doc.recompute()
hole = doc.addObject("PartDesign::Hole", "Hole")
body.addObject(hole)
hole.Profile = sketch13
hole.ThreadType = "None"
hole.Diameter = 8.3
hole.DepthType = "Dimension"
hole.Depth = 3.2
hole.DrillPoint = "Flat"
hole.Reversed = True

sketch14 = doc.addObject("Sketcher::SketchObject", "Sketch013")
body.addObject(sketch14)
sketch14.AttachmentSupport = (doc.YZ_Plane, [""])
sketch14.MapMode = "FlatFace"
sketch14.addGeometry(Part.Circle(V(47, -13.25, 0), V(0, 0, 1), 2.25), False)
sketch14.addGeometry(Part.Circle(V(83, -13.25, 0), V(0, 0, 1), 2.25), False)
sketch14.addGeometry(Part.Circle(V(98.5, -13.25, 0), V(0, 0, 1), 2.25), False)
sketch14.addGeometry(Part.Circle(V(134.5, -13.25, 0), V(0, 0, 1), 2.25), False)
sketch14.addGeometry(Part.Circle(V(142.25, -5.5, 0), V(0, 0, 1), 2.25), False)
sketch14.addGeometry(Part.Circle(V(142.25, 5.5, 0), V(0, 0, 1), 2.25), False)
sketch14.addConstraint(Sketcher.Constraint("Equal", 0, 1))
sketch14.addConstraint(Sketcher.Constraint("Equal", 1, 2))
sketch14.addConstraint(Sketcher.Constraint("Equal", 2, 3))
sketch14.addConstraint(Sketcher.Constraint("Equal", 3, 4))
sketch14.addConstraint(Sketcher.Constraint("Equal", 4, 5))
sketch14.addConstraint(Sketcher.Constraint("Symmetric", 4, 3, 5, 3, -1))
sketch14.addConstraint(Sketcher.Constraint("Horizontal", 0, 3, 1, 3))
sketch14.addConstraint(Sketcher.Constraint("Horizontal", 1, 3, 2, 3))
sketch14.addConstraint(Sketcher.Constraint("Horizontal", 2, 3, 3, 3))
sketch14.addConstraint(Sketcher.Constraint("Diameter", 0, 4.5))
sketch14.addConstraint(Sketcher.Constraint("DistanceX", -1, 1, 0, 3, 47.0))
sketch14.addConstraint(Sketcher.Constraint("DistanceX", -1, 1, 1, 3, 83.0))
sketch14.addConstraint(Sketcher.Constraint("DistanceX", 2, 3, 3, 3, 36.0))
sketch14.addConstraint(Sketcher.Constraint("DistanceY", 4, 3, 5, 3, 11.0))
sketch14.addConstraint(Sketcher.Constraint("DistanceX", -1, 1, 2, 3, 98.5))
sketch14.addConstraint(Sketcher.Constraint("DistanceY", 0, 3, -1, 1, 13.25))
sketch14.addConstraint(Sketcher.Constraint("DistanceX", -1, 1, 4, 3, 142.25))
doc.recompute()
hole2 = doc.addObject("PartDesign::Hole", "Hole001")
body.addObject(hole2)
hole2.Profile = sketch14
hole2.ThreadType = "None"
hole2.Diameter = 4.5
hole2.DepthType = "ThroughAll"
hole2.Reversed = True

sketch15 = doc.addObject("Sketcher::SketchObject", "Sketch014")
body.addObject(sketch15)
sketch15.AttachmentSupport = (doc.YZ_Plane, [""])
sketch15.MapMode = "FlatFace"
sketch15.AttachmentOffset = App.Placement(V(0, 0, 90), App.Rotation())
sketch15.addGeometry(Part.Circle(V(98.5, 13.25, 0), V(0, 0, 1), 1.25), False)
sketch15.addGeometry(Part.Circle(V(134.5, 13.25, 0), V(0, 0, 1), 1.25), False)
sketch15.addGeometry(Part.Circle(V(47, 13.25, 0), V(0, 0, 1), 1.25), False)
sketch15.addGeometry(Part.Circle(V(83, 13.25, 0), V(0, 0, 1), 1.25), False)
sketch15.addGeometry(Part.Circle(V(39.25, -5.5, 0), V(0, 0, 1), 1.25), False)
sketch15.addGeometry(Part.Circle(V(39.25, 5.5, 0), V(0, 0, 1), 1.25), False)
sketch15.addConstraint(Sketcher.Constraint("Equal", 0, 1))
sketch15.addConstraint(Sketcher.Constraint("Equal", 1, 2))
sketch15.addConstraint(Sketcher.Constraint("Equal", 2, 3))
sketch15.addConstraint(Sketcher.Constraint("Equal", 3, 4))
sketch15.addConstraint(Sketcher.Constraint("Equal", 4, 5))
sketch15.addConstraint(Sketcher.Constraint("Symmetric", 4, 3, 5, 3, -1))
sketch15.addConstraint(Sketcher.Constraint("Horizontal", 0, 3, 1, 3))
sketch15.addConstraint(Sketcher.Constraint("Horizontal", 1, 3, 2, 3))
sketch15.addConstraint(Sketcher.Constraint("Horizontal", 2, 3, 3, 3))
sketch15.addConstraint(Sketcher.Constraint("Diameter", 0, 2.5))
sketch15.addConstraint(Sketcher.Constraint("DistanceX", -1, 1, 2, 3, 47.0))
sketch15.addConstraint(Sketcher.Constraint("DistanceX", -1, 1, 3, 3, 83.0))
sketch15.addConstraint(Sketcher.Constraint("DistanceX", 0, 3, 1, 3, 36.0))
sketch15.addConstraint(Sketcher.Constraint("DistanceY", 4, 3, 5, 3, 11.0))
sketch15.addConstraint(Sketcher.Constraint("DistanceX", -1, 1, 0, 3, 98.5))
sketch15.addConstraint(Sketcher.Constraint("DistanceY", -1, 1, 0, 3, 13.25))
sketch15.addConstraint(Sketcher.Constraint("DistanceX", -1, 1, 4, 3, 39.25))
doc.recompute()
hole3 = doc.addObject("PartDesign::Hole", "Hole002")
body.addObject(hole3)
hole3.Profile = sketch15
hole3.ThreadType = "None"
hole3.Diameter = 2.5
hole3.DepthType = "ThroughAll"

sketch16 = doc.addObject("Sketcher::SketchObject", "Sketch015")
body.addObject(sketch16)
sketch16.AttachmentSupport = (doc.YZ_Plane, [""])
sketch16.MapMode = "FlatFace"
sketch16.addGeometry(Part.Circle(V(90, 0, 0), V(0, 0, 1), 4.503081), False)
sketch16.addConstraint(Sketcher.Constraint("PointOnObject", 0, 3, -1))
sketch16.addConstraint(Sketcher.Constraint("DistanceX", -1, 1, 0, 3, 90.0))
sketch16.addConstraint(Sketcher.Constraint("Diameter", 0, 9.006161))
pad4 = doc.addObject("PartDesign::Pad", "Pad003")
body.addObject(pad4)
pad4.Profile = sketch16
pad4.Length = 3

sketch17 = doc.addObject("Sketcher::SketchObject", "Sketch016")
body.addObject(sketch17)
sketch17.AttachmentSupport = (doc.YZ_Plane, [""])
sketch17.MapMode = "FlatFace"
sketch17.AttachmentOffset = App.Placement(V(0, 0, 90), App.Rotation())
sketch17.addGeometry(Part.Circle(V(134.5, 13.25, 0), V(0, 0, 1), 1.649948), False)
sketch17.addGeometry(Part.Circle(V(98.5, 13.25, 0), V(0, 0, 1), 1.660581), False)
sketch17.addGeometry(Part.Circle(V(83, 13.25, 0), V(0, 0, 1), 1.430746), False)
sketch17.addGeometry(Part.Circle(V(47, 13.25, 0), V(0, 0, 1), 1.57325), False)
sketch17.addGeometry(Part.Circle(V(39.25, 5.5, 0), V(0, 0, 1), 1.50203), False)
sketch17.addGeometry(Part.Circle(V(39.25, -5.5, 0), V(0, 0, 1), 1.537956), False)
sketch17.addConstraint(Sketcher.Constraint("Symmetric", 4, 3, 5, 3, -1))
sketch17.addConstraint(Sketcher.Constraint("Horizontal", 0, 3, 1, 3))
sketch17.addConstraint(Sketcher.Constraint("Horizontal", 1, 3, 2, 3))
sketch17.addConstraint(Sketcher.Constraint("Horizontal", 2, 3, 3, 3))
sketch17.addConstraint(Sketcher.Constraint("DistanceX", -1, 1, 2, 3, 83.0))
sketch17.addConstraint(Sketcher.Constraint("DistanceX", -1, 1, 3, 3, 47.0))
sketch17.addConstraint(Sketcher.Constraint("DistanceX", 1, 3, 0, 3, 36.0))
sketch17.addConstraint(Sketcher.Constraint("DistanceY", 5, 3, 4, 3, 11.0))
sketch17.addConstraint(Sketcher.Constraint("Diameter", 3, 3.146501))
sketch17.addConstraint(Sketcher.Constraint("DistanceX", -1, 1, 0, 3, 134.5))
sketch17.addConstraint(Sketcher.Constraint("Diameter", 2, 2.861491))
sketch17.addConstraint(Sketcher.Constraint("Diameter", 4, 3.00406))
sketch17.addConstraint(Sketcher.Constraint("DistanceY", -1, 1, 0, 3, 13.25))
sketch17.addConstraint(Sketcher.Constraint("DistanceX", -1, 1, 4, 3, 39.25))
sketch17.addConstraint(Sketcher.Constraint("Diameter", 0, 3.299897))
sketch17.addConstraint(Sketcher.Constraint("Diameter", 1, 3.321163))
sketch17.addConstraint(Sketcher.Constraint("Diameter", 5, 3.075912))
pad5 = doc.addObject("PartDesign::Pad", "Pad004")
body.addObject(pad5)
pad5.Profile = sketch17
pad5.Length = 90
pad5.Reversed = True

doc.recompute()
